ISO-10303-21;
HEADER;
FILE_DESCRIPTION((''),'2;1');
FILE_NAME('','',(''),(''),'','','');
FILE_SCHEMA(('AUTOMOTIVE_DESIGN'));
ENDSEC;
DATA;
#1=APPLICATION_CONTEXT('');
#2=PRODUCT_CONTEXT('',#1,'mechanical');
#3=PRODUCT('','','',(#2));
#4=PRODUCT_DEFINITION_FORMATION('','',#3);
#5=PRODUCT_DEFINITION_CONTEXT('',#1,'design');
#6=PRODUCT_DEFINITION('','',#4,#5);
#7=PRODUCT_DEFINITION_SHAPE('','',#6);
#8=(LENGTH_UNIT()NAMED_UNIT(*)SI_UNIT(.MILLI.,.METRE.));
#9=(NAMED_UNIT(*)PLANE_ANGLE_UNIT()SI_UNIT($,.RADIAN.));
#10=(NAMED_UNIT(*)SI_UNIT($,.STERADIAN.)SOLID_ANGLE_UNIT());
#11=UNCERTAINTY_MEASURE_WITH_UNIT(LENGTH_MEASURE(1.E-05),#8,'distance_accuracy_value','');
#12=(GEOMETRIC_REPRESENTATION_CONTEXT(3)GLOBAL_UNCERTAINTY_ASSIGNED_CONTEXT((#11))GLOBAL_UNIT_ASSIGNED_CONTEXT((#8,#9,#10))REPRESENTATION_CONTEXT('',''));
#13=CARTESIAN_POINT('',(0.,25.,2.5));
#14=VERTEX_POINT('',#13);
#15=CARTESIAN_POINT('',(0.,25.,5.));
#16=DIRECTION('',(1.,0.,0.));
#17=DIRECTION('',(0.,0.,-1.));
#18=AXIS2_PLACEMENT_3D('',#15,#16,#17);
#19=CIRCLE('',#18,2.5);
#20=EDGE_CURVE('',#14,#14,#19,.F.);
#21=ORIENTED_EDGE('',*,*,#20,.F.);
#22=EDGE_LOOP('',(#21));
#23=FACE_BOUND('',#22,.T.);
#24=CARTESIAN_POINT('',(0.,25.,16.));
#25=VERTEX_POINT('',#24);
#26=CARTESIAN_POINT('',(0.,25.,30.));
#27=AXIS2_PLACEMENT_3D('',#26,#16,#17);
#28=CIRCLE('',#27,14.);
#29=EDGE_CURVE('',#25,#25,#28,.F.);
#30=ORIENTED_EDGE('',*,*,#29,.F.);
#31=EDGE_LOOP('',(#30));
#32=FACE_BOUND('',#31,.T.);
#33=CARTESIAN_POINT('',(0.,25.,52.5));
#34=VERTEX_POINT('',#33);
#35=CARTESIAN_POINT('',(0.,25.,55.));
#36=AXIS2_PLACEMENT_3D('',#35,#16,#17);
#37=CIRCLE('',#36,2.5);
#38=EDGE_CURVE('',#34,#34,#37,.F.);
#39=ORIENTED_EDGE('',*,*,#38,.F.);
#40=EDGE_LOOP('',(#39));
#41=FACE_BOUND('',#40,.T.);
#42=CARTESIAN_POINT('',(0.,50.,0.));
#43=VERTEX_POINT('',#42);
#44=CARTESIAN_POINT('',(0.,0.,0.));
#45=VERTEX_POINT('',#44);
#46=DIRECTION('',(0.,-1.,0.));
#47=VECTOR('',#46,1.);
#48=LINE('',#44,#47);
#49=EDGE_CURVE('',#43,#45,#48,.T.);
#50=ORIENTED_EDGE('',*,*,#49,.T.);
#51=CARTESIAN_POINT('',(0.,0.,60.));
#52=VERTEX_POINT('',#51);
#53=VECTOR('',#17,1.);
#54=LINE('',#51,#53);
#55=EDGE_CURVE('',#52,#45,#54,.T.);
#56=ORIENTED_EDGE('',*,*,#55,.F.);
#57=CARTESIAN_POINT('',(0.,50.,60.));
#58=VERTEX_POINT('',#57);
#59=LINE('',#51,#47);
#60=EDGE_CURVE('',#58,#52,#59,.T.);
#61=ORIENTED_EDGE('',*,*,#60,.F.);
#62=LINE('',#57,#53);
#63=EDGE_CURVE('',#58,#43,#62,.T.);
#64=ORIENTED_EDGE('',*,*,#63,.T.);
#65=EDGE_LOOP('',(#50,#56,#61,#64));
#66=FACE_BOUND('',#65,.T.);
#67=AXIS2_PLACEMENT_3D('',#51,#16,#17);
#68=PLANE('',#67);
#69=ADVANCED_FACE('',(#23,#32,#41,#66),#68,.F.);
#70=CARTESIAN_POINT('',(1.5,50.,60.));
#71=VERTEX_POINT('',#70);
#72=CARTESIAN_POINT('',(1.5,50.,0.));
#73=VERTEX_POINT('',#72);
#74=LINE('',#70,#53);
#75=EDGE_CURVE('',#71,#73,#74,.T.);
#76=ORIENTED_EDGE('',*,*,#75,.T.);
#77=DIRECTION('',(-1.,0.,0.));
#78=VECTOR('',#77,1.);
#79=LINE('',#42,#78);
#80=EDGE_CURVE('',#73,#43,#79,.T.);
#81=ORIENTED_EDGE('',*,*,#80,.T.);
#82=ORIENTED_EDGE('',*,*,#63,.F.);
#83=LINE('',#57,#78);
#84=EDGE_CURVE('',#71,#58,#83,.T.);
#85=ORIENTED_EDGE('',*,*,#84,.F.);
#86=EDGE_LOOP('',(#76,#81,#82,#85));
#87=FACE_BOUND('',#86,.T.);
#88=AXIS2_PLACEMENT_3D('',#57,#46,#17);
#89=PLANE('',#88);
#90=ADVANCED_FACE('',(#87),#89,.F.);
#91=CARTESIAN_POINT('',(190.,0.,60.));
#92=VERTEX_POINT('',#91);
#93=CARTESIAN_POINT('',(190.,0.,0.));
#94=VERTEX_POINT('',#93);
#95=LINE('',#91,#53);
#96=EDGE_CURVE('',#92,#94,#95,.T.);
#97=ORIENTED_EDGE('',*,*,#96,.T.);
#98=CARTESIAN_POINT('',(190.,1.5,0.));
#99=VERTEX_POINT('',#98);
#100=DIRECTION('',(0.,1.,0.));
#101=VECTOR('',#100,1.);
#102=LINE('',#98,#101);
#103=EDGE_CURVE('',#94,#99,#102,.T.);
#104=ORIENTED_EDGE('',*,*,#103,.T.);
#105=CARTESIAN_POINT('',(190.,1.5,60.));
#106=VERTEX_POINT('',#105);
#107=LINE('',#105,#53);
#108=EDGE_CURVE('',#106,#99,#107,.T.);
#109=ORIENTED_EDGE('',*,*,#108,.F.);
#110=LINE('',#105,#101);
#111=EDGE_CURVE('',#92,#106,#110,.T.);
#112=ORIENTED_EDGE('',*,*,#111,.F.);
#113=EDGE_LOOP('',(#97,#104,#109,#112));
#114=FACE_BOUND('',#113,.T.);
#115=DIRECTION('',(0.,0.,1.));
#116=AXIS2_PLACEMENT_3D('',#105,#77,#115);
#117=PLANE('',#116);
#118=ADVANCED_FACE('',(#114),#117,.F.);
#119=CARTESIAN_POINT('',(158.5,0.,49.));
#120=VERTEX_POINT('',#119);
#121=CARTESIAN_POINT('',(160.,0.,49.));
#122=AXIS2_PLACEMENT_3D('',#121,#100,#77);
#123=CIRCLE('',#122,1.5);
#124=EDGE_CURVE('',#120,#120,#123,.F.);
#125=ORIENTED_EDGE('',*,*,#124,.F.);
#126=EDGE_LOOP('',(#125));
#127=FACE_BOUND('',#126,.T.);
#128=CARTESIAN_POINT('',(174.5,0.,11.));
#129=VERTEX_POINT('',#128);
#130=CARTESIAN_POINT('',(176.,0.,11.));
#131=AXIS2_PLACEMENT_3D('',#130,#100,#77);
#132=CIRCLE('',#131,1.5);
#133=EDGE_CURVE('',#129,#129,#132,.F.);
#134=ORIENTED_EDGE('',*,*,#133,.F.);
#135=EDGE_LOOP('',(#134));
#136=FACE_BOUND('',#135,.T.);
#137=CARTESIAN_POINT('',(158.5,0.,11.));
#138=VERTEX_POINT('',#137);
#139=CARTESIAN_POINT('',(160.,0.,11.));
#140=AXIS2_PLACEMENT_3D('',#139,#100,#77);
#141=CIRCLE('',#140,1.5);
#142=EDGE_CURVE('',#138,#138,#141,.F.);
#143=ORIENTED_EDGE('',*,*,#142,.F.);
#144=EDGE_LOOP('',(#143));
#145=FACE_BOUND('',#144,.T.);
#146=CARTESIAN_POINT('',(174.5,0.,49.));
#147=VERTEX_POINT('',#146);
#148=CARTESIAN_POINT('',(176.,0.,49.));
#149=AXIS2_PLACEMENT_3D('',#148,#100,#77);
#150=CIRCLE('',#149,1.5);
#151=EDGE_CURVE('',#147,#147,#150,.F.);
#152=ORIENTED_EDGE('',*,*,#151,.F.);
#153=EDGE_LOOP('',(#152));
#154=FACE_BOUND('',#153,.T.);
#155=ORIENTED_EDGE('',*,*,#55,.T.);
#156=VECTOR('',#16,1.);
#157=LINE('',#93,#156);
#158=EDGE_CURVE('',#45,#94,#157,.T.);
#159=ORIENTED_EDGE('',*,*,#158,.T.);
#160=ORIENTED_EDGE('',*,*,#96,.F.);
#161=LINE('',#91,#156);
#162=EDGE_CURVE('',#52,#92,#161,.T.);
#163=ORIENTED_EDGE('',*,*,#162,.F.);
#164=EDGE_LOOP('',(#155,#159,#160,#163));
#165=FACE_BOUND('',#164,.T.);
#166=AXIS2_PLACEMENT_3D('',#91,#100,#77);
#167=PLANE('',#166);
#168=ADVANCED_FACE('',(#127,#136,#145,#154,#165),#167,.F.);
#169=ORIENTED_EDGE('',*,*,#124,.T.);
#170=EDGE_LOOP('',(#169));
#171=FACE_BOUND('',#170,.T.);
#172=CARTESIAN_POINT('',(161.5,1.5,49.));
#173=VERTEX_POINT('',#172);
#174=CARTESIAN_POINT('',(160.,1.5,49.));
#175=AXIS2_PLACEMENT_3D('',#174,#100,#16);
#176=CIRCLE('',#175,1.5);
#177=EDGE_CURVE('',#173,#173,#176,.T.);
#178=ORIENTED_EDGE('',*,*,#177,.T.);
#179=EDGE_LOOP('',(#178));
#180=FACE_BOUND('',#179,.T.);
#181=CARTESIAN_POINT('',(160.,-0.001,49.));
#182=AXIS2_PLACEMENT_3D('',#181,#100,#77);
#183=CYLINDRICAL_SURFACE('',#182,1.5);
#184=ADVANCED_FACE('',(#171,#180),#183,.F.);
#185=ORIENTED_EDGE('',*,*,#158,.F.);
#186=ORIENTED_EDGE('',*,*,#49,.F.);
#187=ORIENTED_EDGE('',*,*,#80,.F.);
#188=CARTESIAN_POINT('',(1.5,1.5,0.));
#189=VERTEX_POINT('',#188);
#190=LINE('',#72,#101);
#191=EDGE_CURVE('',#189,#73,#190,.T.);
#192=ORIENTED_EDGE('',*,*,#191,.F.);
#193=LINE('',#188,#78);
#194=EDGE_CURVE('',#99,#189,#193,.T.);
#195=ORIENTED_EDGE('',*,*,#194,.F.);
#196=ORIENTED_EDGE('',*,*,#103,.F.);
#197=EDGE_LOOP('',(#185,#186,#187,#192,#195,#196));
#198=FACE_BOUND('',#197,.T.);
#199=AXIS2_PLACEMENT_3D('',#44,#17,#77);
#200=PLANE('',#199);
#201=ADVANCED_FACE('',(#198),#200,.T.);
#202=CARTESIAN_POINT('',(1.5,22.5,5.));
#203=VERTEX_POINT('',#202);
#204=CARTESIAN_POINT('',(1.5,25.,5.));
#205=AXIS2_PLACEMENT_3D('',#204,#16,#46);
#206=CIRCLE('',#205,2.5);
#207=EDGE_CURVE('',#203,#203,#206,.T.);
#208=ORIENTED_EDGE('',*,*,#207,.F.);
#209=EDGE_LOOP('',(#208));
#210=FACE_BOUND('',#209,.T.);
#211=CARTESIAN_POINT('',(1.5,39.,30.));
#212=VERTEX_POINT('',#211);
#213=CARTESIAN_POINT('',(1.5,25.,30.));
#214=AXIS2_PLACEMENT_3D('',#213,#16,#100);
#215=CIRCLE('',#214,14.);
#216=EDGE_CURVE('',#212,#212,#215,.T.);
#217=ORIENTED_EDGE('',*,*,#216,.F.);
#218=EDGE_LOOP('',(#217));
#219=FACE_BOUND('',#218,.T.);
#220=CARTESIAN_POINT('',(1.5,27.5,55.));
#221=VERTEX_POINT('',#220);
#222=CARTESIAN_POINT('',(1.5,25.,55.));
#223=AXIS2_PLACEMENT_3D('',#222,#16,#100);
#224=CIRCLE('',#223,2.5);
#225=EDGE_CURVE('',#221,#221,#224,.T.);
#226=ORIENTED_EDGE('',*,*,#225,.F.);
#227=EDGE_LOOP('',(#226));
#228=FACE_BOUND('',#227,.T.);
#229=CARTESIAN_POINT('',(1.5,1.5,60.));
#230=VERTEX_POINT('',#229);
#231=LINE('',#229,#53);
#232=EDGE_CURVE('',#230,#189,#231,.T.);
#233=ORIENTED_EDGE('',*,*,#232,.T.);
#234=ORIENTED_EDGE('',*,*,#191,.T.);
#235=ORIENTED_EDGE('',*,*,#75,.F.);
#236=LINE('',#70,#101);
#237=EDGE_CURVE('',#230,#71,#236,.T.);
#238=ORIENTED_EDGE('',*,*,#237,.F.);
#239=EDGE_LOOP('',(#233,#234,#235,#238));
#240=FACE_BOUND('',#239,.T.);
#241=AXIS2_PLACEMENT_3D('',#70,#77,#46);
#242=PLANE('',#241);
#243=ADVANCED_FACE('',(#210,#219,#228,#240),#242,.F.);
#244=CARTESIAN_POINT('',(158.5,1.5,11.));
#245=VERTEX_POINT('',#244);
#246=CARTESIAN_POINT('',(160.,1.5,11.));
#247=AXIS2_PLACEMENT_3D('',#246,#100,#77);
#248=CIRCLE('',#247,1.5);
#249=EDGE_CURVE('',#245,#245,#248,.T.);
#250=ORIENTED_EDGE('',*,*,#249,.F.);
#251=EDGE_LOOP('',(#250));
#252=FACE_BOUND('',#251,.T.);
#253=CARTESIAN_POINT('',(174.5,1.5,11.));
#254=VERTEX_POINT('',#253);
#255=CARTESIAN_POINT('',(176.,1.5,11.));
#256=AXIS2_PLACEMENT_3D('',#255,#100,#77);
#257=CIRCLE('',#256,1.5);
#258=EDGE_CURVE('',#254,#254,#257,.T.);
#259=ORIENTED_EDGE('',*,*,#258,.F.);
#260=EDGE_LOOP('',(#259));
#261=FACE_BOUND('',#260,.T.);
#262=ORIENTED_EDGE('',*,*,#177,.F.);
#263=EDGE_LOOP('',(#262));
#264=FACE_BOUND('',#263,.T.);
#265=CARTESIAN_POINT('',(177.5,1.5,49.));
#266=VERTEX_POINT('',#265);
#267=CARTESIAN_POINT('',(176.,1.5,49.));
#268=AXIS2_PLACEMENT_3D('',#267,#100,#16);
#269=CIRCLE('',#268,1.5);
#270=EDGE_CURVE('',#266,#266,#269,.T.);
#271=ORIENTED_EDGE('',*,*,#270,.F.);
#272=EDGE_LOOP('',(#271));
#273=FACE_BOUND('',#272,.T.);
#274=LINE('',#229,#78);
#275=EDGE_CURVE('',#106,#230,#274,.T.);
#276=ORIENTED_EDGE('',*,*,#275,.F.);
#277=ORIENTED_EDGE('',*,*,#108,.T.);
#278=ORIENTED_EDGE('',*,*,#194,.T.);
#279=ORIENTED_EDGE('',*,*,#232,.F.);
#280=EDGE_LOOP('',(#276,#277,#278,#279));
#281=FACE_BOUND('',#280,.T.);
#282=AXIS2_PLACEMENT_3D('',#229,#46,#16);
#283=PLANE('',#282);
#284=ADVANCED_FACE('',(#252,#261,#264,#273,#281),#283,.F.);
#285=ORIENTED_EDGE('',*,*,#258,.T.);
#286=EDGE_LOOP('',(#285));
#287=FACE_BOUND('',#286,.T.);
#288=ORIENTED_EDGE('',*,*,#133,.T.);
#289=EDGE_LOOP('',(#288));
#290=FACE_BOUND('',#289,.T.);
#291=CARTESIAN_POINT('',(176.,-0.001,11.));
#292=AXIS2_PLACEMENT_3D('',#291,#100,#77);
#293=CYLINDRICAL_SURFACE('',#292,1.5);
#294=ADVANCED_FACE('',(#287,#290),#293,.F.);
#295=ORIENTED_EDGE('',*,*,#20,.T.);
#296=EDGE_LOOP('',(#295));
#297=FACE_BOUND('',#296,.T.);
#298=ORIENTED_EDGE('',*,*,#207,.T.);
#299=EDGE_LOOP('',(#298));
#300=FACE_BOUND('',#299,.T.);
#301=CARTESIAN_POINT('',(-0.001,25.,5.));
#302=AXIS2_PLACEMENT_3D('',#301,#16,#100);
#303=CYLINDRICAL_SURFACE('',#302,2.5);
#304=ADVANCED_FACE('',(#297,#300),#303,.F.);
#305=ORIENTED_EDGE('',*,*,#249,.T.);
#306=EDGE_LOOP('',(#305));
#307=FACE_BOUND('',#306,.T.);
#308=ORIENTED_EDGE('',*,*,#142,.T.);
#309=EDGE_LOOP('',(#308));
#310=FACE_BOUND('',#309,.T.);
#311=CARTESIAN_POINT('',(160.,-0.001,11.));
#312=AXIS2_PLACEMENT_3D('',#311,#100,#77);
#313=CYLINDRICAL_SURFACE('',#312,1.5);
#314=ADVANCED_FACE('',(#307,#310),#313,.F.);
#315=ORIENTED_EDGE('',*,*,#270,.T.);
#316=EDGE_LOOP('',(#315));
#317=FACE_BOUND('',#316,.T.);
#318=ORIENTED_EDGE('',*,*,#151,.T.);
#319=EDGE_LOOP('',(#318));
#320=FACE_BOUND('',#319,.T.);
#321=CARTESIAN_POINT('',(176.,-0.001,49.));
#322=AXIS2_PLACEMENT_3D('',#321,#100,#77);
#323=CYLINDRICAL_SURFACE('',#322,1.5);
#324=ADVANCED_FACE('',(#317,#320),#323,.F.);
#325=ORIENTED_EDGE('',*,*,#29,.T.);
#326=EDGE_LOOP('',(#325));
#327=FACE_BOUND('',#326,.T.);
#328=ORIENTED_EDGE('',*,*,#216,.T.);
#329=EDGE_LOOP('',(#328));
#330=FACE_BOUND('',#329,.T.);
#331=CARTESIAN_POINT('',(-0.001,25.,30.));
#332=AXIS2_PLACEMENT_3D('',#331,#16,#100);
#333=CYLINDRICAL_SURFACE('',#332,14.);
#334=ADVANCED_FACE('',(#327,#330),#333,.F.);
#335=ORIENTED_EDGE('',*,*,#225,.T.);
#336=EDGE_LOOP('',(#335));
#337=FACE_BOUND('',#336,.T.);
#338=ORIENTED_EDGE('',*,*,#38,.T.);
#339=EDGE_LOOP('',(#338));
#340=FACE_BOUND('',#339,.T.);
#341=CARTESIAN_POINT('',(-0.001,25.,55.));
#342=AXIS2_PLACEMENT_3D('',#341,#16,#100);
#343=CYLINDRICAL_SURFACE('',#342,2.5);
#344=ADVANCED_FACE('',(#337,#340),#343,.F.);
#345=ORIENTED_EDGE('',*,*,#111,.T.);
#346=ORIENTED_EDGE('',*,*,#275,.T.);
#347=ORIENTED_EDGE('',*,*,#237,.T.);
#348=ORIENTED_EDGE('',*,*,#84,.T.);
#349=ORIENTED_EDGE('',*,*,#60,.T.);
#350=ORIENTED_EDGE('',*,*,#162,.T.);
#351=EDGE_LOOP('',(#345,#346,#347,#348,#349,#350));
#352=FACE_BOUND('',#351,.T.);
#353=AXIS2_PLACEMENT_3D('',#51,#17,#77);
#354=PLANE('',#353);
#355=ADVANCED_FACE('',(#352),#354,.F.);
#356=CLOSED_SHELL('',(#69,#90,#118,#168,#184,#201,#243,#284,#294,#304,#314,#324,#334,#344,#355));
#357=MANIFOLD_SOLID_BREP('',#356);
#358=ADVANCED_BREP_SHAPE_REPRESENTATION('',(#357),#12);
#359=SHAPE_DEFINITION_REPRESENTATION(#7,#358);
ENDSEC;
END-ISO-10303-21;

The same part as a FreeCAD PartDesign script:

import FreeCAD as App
import Part
import Sketcher
Q = App.Units.Quantity

doc = App.newDocument("Part")
body = doc.addObject("PartDesign::Body", "Body")

sketch1 = doc.addObject("Sketcher::SketchObject", "Sketch")
body.addObject(sketch1)
sketch1.AttachmentSupport = (doc.XY_Plane, [""])
sketch1.MapMode = "FlatFace"
sketch1.addGeometry([
    Part.LineSegment(App.Vector(0, 50, 0), App.Vector(0, 0, 0)),
    Part.LineSegment(App.Vector(0, 0, 0), App.Vector(190, 0, 0)),
    Part.LineSegment(App.Vector(190, 0, 0), App.Vector(190, 1.5, 0)),
    Part.LineSegment(App.Vector(190, 1.5, 0), App.Vector(1.5, 1.5, 0)),
    Part.LineSegment(App.Vector(1.5, 1.5, 0), App.Vector(1.5, 50, 0)),
    Part.LineSegment(App.Vector(1.5, 50, 0), App.Vector(0, 50, 0)),
], False)
sketch1.addConstraint([
    Sketcher.Constraint("Coincident", 0, 2, 1, 1),
    Sketcher.Constraint("Coincident", 1, 2, 2, 1),
    Sketcher.Constraint("Coincident", 2, 2, 3, 1),
    Sketcher.Constraint("Coincident", 3, 2, 4, 1),
    Sketcher.Constraint("Coincident", 4, 2, 5, 1),
    Sketcher.Constraint("Coincident", 5, 2, 0, 1),
    Sketcher.Constraint("Vertical", 0),
    Sketcher.Constraint("Horizontal", 1),
    Sketcher.Constraint("Vertical", 2),
    Sketcher.Constraint("Horizontal", 3),
    Sketcher.Constraint("Vertical", 4),
    Sketcher.Constraint("Horizontal", 5),
    Sketcher.Constraint("Coincident", 0, 2, -1, 1),
    Sketcher.Constraint("Equal", 5, 2),
    Sketcher.Constraint("DistanceX", 1, 1, 1, 2, Q("190 mm")),
    Sketcher.Constraint("DistanceY", 0, 2, 0, 1, Q("50 mm")),
    Sketcher.Constraint("DistanceX", 3, 2, 3, 1, Q("188.5 mm")),
])
pad1 = doc.addObject("PartDesign::Pad", "Pad")
body.addObject(pad1)
pad1.Profile = sketch1
pad1.Length = 60

sketch2 = doc.addObject("Sketcher::SketchObject", "Sketch001")
body.addObject(sketch2)
sketch2.AttachmentSupport = (doc.YZ_Plane, [""])
sketch2.MapMode = "FlatFace"
sketch2.AttachmentOffset = App.Placement(App.Vector(0, 0, 1.5), App.Rotation())
sketch2.addGeometry(Part.Circle(App.Vector(25, 30, 0), App.Vector(0, 0, 1), 14), False)
sketch2.addConstraint([
    Sketcher.Constraint("Diameter", 0, Q("28 mm")),
    Sketcher.Constraint("DistanceX", -1, 1, 0, 3, Q("25 mm")),
    Sketcher.Constraint("DistanceY", -1, 1, 0, 3, Q("30 mm")),
])
pocket1 = doc.addObject("PartDesign::Pocket", "Pocket")
body.addObject(pocket1)
pocket1.Profile = sketch2
pocket1.Type = "UpToFirst"

sketch3 = doc.addObject("Sketcher::SketchObject", "Sketch002")
body.addObject(sketch3)
sketch3.AttachmentSupport = (doc.YZ_Plane, [""])
sketch3.MapMode = "FlatFace"
sketch3.AttachmentOffset = App.Placement(App.Vector(0, 0, 1.5), App.Rotation())
sketch3.addGeometry(Part.Circle(App.Vector(25, 55, 0), App.Vector(0, 0, 1), 2.5), False)
sketch3.addConstraint([
    Sketcher.Constraint("Diameter", 0, Q("5 mm")),
    Sketcher.Constraint("DistanceX", -1, 1, 0, 3, Q("25 mm")),
    Sketcher.Constraint("DistanceY", -1, 1, 0, 3, Q("55 mm")),
])
pocket2 = doc.addObject("PartDesign::Pocket", "Pocket001")
body.addObject(pocket2)
pocket2.Profile = sketch3
pocket2.Type = "UpToFirst"

sketch4 = doc.addObject("Sketcher::SketchObject", "Sketch003")
body.addObject(sketch4)
sketch4.AttachmentSupport = (doc.YZ_Plane, [""])
sketch4.MapMode = "FlatFace"
sketch4.AttachmentOffset = App.Placement(App.Vector(0, 0, 1.5), App.Rotation())
sketch4.addGeometry(Part.Circle(App.Vector(25, 5, 0), App.Vector(0, 0, 1), 2.5), False)
sketch4.addConstraint([
    Sketcher.Constraint("Diameter", 0, Q("5 mm")),
    Sketcher.Constraint("DistanceX", -1, 1, 0, 3, Q("25 mm")),
    Sketcher.Constraint("DistanceY", -1, 1, 0, 3, Q("5 mm")),
])
pocket3 = doc.addObject("PartDesign::Pocket", "Pocket002")
body.addObject(pocket3)
pocket3.Profile = sketch4
pocket3.Type = "UpToFirst"

sketch5 = doc.addObject("Sketcher::SketchObject", "Sketch004")
body.addObject(sketch5)
sketch5.AttachmentSupport = (doc.XZ_Plane, [""])
sketch5.MapMode = "FlatFace"
sketch5.AttachmentOffset = App.Placement(App.Vector(0, 0, -1.5), App.Rotation())
sketch5.addGeometry(Part.Circle(App.Vector(160, 11, 0), App.Vector(0, 0, 1), 1.5), False)
sketch5.addConstraint([
    Sketcher.Constraint("Diameter", 0, Q("3 mm")),
    Sketcher.Constraint("DistanceX", -1, 1, 0, 3, Q("160 mm")),
    Sketcher.Constraint("DistanceY", -1, 1, 0, 3, Q("11 mm")),
])
pocket4 = doc.addObject("PartDesign::Pocket", "Pocket003")
body.addObject(pocket4)
pocket4.Profile = sketch5
pocket4.Type = "UpToFirst"
pocket4.Reversed = True

sketch6 = doc.addObject("Sketcher::SketchObject", "Sketch005")
body.addObject(sketch6)
sketch6.AttachmentSupport = (doc.XZ_Plane, [""])
sketch6.MapMode = "FlatFace"
sketch6.AttachmentOffset = App.Placement(App.Vector(0, 0, -1.5), App.Rotation())
sketch6.addGeometry(Part.Circle(App.Vector(176, 11, 0), App.Vector(0, 0, 1), 1.5), False)
sketch6.addConstraint([
    Sketcher.Constraint("Diameter", 0, Q("3 mm")),
    Sketcher.Constraint("DistanceX", -1, 1, 0, 3, Q("176 mm")),
    Sketcher.Constraint("DistanceY", -1, 1, 0, 3, Q("11 mm")),
])
pocket5 = doc.addObject("PartDesign::Pocket", "Pocket004")
body.addObject(pocket5)
pocket5.Profile = sketch6
pocket5.Type = "UpToFirst"
pocket5.Reversed = True

sketch7 = doc.addObject("Sketcher::SketchObject", "Sketch006")
body.addObject(sketch7)
sketch7.AttachmentSupport = (doc.XZ_Plane, [""])
sketch7.MapMode = "FlatFace"
sketch7.AttachmentOffset = App.Placement(App.Vector(0, 0, -1.5), App.Rotation())
sketch7.addGeometry(Part.Circle(App.Vector(176, 49, 0), App.Vector(0, 0, 1), 1.5), False)
sketch7.addConstraint([
    Sketcher.Constraint("Diameter", 0, Q("3 mm")),
    Sketcher.Constraint("DistanceX", -1, 1, 0, 3, Q("176 mm")),
    Sketcher.Constraint("DistanceY", -1, 1, 0, 3, Q("49 mm")),
])
pocket6 = doc.addObject("PartDesign::Pocket", "Pocket005")
body.addObject(pocket6)
pocket6.Profile = sketch7
pocket6.Type = "UpToFirst"
pocket6.Reversed = True

sketch8 = doc.addObject("Sketcher::SketchObject", "Sketch007")
body.addObject(sketch8)
sketch8.AttachmentSupport = (doc.XZ_Plane, [""])
sketch8.MapMode = "FlatFace"
sketch8.AttachmentOffset = App.Placement(App.Vector(0, 0, -1.5), App.Rotation())
sketch8.addGeometry(Part.Circle(App.Vector(160, 49, 0), App.Vector(0, 0, 1), 1.5), False)
sketch8.addConstraint([
    Sketcher.Constraint("Diameter", 0, Q("3 mm")),
    Sketcher.Constraint("DistanceX", -1, 1, 0, 3, Q("160 mm")),
    Sketcher.Constraint("DistanceY", -1, 1, 0, 3, Q("49 mm")),
])
pocket7 = doc.addObject("PartDesign::Pocket", "Pocket006")
body.addObject(pocket7)
pocket7.Profile = sketch8
pocket7.Type = "UpToFirst"
pocket7.Reversed = True

doc.recompute()
